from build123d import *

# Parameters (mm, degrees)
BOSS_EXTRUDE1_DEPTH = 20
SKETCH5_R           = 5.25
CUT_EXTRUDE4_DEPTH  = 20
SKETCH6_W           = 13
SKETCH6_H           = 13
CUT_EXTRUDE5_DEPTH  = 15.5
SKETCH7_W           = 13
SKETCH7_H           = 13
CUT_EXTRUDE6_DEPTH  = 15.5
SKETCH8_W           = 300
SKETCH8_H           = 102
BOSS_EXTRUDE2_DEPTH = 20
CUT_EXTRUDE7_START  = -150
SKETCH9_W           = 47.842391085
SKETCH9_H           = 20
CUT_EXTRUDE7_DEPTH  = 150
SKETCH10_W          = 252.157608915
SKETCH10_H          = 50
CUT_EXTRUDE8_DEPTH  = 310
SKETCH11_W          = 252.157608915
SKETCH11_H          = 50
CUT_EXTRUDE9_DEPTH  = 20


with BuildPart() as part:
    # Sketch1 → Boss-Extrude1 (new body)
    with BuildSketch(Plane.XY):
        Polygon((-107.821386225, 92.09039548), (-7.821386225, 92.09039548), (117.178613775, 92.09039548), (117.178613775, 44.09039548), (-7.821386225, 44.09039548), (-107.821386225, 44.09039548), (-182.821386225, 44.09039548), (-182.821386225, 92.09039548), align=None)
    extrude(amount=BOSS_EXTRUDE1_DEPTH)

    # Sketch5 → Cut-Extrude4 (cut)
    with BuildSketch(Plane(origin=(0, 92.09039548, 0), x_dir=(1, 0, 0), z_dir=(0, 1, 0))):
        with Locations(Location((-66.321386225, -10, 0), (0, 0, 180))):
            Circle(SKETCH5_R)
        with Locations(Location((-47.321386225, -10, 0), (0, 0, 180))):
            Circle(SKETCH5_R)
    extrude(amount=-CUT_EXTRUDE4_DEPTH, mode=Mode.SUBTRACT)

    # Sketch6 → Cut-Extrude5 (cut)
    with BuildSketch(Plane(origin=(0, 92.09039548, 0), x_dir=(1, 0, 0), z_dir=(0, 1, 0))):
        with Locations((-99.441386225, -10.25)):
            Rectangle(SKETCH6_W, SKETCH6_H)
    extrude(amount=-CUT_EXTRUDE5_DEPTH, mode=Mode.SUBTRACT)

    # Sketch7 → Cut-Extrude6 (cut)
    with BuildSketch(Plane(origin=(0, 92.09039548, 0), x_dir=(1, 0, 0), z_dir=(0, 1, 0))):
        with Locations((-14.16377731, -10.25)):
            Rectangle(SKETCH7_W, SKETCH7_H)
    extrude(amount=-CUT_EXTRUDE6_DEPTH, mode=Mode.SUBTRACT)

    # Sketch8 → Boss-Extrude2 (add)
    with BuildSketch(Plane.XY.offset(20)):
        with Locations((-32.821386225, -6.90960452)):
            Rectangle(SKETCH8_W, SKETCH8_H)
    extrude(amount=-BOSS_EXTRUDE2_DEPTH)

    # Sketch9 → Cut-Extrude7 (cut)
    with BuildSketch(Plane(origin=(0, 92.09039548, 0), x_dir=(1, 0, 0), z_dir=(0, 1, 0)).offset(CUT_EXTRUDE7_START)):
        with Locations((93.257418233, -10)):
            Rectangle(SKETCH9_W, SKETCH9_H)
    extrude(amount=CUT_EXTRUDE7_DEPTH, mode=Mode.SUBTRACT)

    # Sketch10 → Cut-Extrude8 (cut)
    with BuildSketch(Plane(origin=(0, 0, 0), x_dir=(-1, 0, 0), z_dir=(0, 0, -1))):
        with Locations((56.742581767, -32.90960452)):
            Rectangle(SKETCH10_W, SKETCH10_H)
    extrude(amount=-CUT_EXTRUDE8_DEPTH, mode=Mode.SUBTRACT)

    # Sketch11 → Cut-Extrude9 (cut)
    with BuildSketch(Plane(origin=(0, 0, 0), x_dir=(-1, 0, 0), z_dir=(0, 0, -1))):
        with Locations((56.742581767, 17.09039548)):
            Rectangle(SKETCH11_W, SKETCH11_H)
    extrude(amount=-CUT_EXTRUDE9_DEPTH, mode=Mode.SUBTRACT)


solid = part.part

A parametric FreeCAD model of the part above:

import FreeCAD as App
import Part
import Sketcher

doc = App.newDocument("Part")
body = doc.addObject("PartDesign::Body", "Body")

# Sketch on XY plane
sketch1 = doc.addObject("Sketcher::SketchObject", "Sketch")
body.addObject(sketch1)
sketch1.AttachmentSupport = (doc.XY_Plane, [""])
sketch1.MapMode = "FlatFace"
sketch1.addGeometry(Part.LineSegment(App.Vector(117.178614, 92.090395, 0), App.Vector(-182.821386, 92.090395, 0)), False)
sketch1.addGeometry(Part.LineSegment(App.Vector(-182.821386, 92.090395, 0), App.Vector(-182.821386, 44.090395, 0)), False)
sketch1.addGeometry(Part.LineSegment(App.Vector(-182.821386, 44.090395, 0), App.Vector(117.178614, 44.090395, 0)), False)
sketch1.addGeometry(Part.LineSegment(App.Vector(117.178614, 44.090395, 0), App.Vector(117.178614, 92.090395, 0)), False)
sketch1.addConstraint(Sketcher.Constraint("Coincident", 0, 2, 1, 1))
sketch1.addConstraint(Sketcher.Constraint("Coincident", 1, 2, 2, 1))
sketch1.addConstraint(Sketcher.Constraint("Coincident", 2, 2, 3, 1))
sketch1.addConstraint(Sketcher.Constraint("Coincident", 3, 2, 0, 1))
sketch1.addConstraint(Sketcher.Constraint("Horizontal", 0))
sketch1.addConstraint(Sketcher.Constraint("Vertical", 1))
sketch1.addConstraint(Sketcher.Constraint("Horizontal", 2))
sketch1.addConstraint(Sketcher.Constraint("Vertical", 3))
sketch1.addConstraint(Sketcher.Constraint("DistanceX", 0, 2, 0, 1, 300.0))
sketch1.addConstraint(Sketcher.Constraint("DistanceY", 1, 2, 1, 1, 48.0))
sketch1.addConstraint(Sketcher.Constraint("DistanceX", 0, 2, -1, 1, 182.821386))
sketch1.addConstraint(Sketcher.Constraint("DistanceY", -1, 1, 0, 2, 92.090395))
pad1 = doc.addObject("PartDesign::Pad", "Pad")
body.addObject(pad1)
pad1.Profile = sketch1
pad1.Length = 20

# Sketch on XZ plane
sketch2 = doc.addObject("Sketcher::SketchObject", "Sketch001")
body.addObject(sketch2)
sketch2.AttachmentSupport = (doc.XZ_Plane, [""])
sketch2.MapMode = "FlatFace"
sketch2.AttachmentOffset = App.Placement(App.Vector(0, 0, -92.090395), App.Rotation())
sketch2.addGeometry(Part.Circle(App.Vector(-66.321386, 10, 0), App.Vector(0, 0, 1), 5.25), False)
sketch2.addGeometry(Part.Circle(App.Vector(-47.321386, 10, 0), App.Vector(0, 0, 1), 5.25), False)
sketch2.addConstraint(Sketcher.Constraint("Equal", 0, 1))
sketch2.addConstraint(Sketcher.Constraint("Horizontal", 0, 3, 1, 3))
sketch2.addConstraint(Sketcher.Constraint("Diameter", 0, 10.5))
sketch2.addConstraint(Sketcher.Constraint("DistanceY", -1, 1, 0, 3, 10.0))
sketch2.addConstraint(Sketcher.Constraint("DistanceX", 0, 3, 1, 3, 19.0))
sketch2.addConstraint(Sketcher.Constraint("DistanceX", 0, 3, -1, 1, 66.321386))
pocket1 = doc.addObject("PartDesign::Pocket", "Pocket")
body.addObject(pocket1)
pocket1.Profile = sketch2
pocket1.Length = 20
pocket1.Reversed = True

# Sketch on XZ plane
sketch3 = doc.addObject("Sketcher::SketchObject", "Sketch002")
body.addObject(sketch3)
sketch3.AttachmentSupport = (doc.XZ_Plane, [""])
sketch3.MapMode = "FlatFace"
sketch3.AttachmentOffset = App.Placement(App.Vector(0, 0, -92.090395), App.Rotation())
sketch3.addGeometry(Part.LineSegment(App.Vector(-105.941386, 3.75, 0), App.Vector(-105.941386, 16.75, 0)), False)
sketch3.addGeometry(Part.LineSegment(App.Vector(-105.941386, 16.75, 0), App.Vector(-92.941386, 16.75, 0)), False)
sketch3.addGeometry(Part.LineSegment(App.Vector(-92.941386, 16.75, 0), App.Vector(-92.941386, 3.75, 0)), False)
sketch3.addGeometry(Part.LineSegment(App.Vector(-92.941386, 3.75, 0), App.Vector(-105.941386, 3.75, 0)), False)
sketch3.addConstraint(Sketcher.Constraint("Coincident", 0, 2, 1, 1))
sketch3.addConstraint(Sketcher.Constraint("Coincident", 1, 2, 2, 1))
sketch3.addConstraint(Sketcher.Constraint("Coincident", 2, 2, 3, 1))
sketch3.addConstraint(Sketcher.Constraint("Coincident", 3, 2, 0, 1))
sketch3.addConstraint(Sketcher.Constraint("Vertical", 0))
sketch3.addConstraint(Sketcher.Constraint("Horizontal", 1))
sketch3.addConstraint(Sketcher.Constraint("Vertical", 2))
sketch3.addConstraint(Sketcher.Constraint("Horizontal", 3))
sketch3.addConstraint(Sketcher.Constraint("Equal", 3, 0))
sketch3.addConstraint(Sketcher.Constraint("DistanceX", 1, 1, 1, 2, 13.0))
sketch3.addConstraint(Sketcher.Constraint("DistanceY", -1, 1, 0, 2, 16.75))
sketch3.addConstraint(Sketcher.Constraint("DistanceX", 0, 2, -1, 1, 105.941386))
pocket2 = doc.addObject("PartDesign::Pocket", "Pocket001")
body.addObject(pocket2)
pocket2.Profile = sketch3
pocket2.Length = 15.5
pocket2.Reversed = True

# Sketch on XZ plane
sketch4 = doc.addObject("Sketcher::SketchObject", "Sketch003")
body.addObject(sketch4)
sketch4.AttachmentSupport = (doc.XZ_Plane, [""])
sketch4.MapMode = "FlatFace"
sketch4.AttachmentOffset = App.Placement(App.Vector(0, 0, -92.090395), App.Rotation())
sketch4.addGeometry(Part.LineSegment(App.Vector(-20.663777, 3.75, 0), App.Vector(-20.663777, 16.75, 0)), False)
sketch4.addGeometry(Part.LineSegment(App.Vector(-20.663777, 16.75, 0), App.Vector(-7.663777, 16.75, 0)), False)
sketch4.addGeometry(Part.LineSegment(App.Vector(-7.663777, 16.75, 0), App.Vector(-7.663777, 3.75, 0)), False)
sketch4.addGeometry(Part.LineSegment(App.Vector(-7.663777, 3.75, 0), App.Vector(-20.663777, 3.75, 0)), False)
sketch4.addConstraint(Sketcher.Constraint("Coincident", 0, 2, 1, 1))
sketch4.addConstraint(Sketcher.Constraint("Coincident", 1, 2, 2, 1))
sketch4.addConstraint(Sketcher.Constraint("Coincident", 2, 2, 3, 1))
sketch4.addConstraint(Sketcher.Constraint("Coincident", 3, 2, 0, 1))
sketch4.addConstraint(Sketcher.Constraint("Vertical", 0))
sketch4.addConstraint(Sketcher.Constraint("Horizontal", 1))
sketch4.addConstraint(Sketcher.Constraint("Vertical", 2))
sketch4.addConstraint(Sketcher.Constraint("Horizontal", 3))
sketch4.addConstraint(Sketcher.Constraint("Equal", 3, 0))
sketch4.addConstraint(Sketcher.Constraint("DistanceX", 1, 1, 1, 2, 13.0))
sketch4.addConstraint(Sketcher.Constraint("DistanceY", -1, 1, 0, 2, 16.75))
sketch4.addConstraint(Sketcher.Constraint("DistanceX", 0, 2, -1, 1, 20.663777))
pocket3 = doc.addObject("PartDesign::Pocket", "Pocket002")
body.addObject(pocket3)
pocket3.Profile = sketch4
pocket3.Length = 15.5
pocket3.Reversed = True

# Sketch on XY plane
sketch5 = doc.addObject("Sketcher::SketchObject", "Sketch004")
body.addObject(sketch5)
sketch5.AttachmentSupport = (doc.XY_Plane, [""])
sketch5.MapMode = "FlatFace"
sketch5.AttachmentOffset = App.Placement(App.Vector(0, 0, 20), App.Rotation())
sketch5.addGeometry(Part.LineSegment(App.Vector(-182.821386, 44.090395, 0), App.Vector(-182.821386, -57.909605, 0)), False)
sketch5.addGeometry(Part.LineSegment(App.Vector(-182.821386, -57.909605, 0), App.Vector(117.178614, -57.909605, 0)), False)
sketch5.addGeometry(Part.LineSegment(App.Vector(117.178614, -57.909605, 0), App.Vector(117.178614, 44.090395, 0)), False)
sketch5.addGeometry(Part.LineSegment(App.Vector(117.178614, 44.090395, 0), App.Vector(-182.821386, 44.090395, 0)), False)
sketch5.addConstraint(Sketcher.Constraint("Coincident", 0, 2, 1, 1))
sketch5.addConstraint(Sketcher.Constraint("Coincident", 1, 2, 2, 1))
sketch5.addConstraint(Sketcher.Constraint("Coincident", 2, 2, 3, 1))
sketch5.addConstraint(Sketcher.Constraint("Coincident", 3, 2, 0, 1))
sketch5.addConstraint(Sketcher.Constraint("Vertical", 0))
sketch5.addConstraint(Sketcher.Constraint("Horizontal", 1))
sketch5.addConstraint(Sketcher.Constraint("Vertical", 2))
sketch5.addConstraint(Sketcher.Constraint("Horizontal", 3))
sketch5.addConstraint(Sketcher.Constraint("DistanceX", 1, 1, 1, 2, 300.0))
sketch5.addConstraint(Sketcher.Constraint("DistanceY", 0, 2, 0, 1, 102.0))
sketch5.addConstraint(Sketcher.Constraint("DistanceX", 0, 2, -1, 1, 182.821386))
sketch5.addConstraint(Sketcher.Constraint("DistanceY", 0, 2, -1, 1, 57.909605))
pad2 = doc.addObject("PartDesign::Pad", "Pad001")
body.addObject(pad2)
pad2.Profile = sketch5
pad2.Length = 20
pad2.Reversed = True

# Sketch on XZ plane
sketch6 = doc.addObject("Sketcher::SketchObject", "Sketch005")
body.addObject(sketch6)
sketch6.AttachmentSupport = (doc.XZ_Plane, [""])
sketch6.MapMode = "FlatFace"
sketch6.AttachmentOffset = App.Placement(App.Vector(0, 0, 57.909605), App.Rotation())
sketch6.addGeometry(Part.LineSegment(App.Vector(69.336223, 0, 0), App.Vector(69.336223, 20, 0)), False)
sketch6.addGeometry(Part.LineSegment(App.Vector(69.336223, 20, 0), App.Vector(117.178614, 20, 0)), False)
sketch6.addGeometry(Part.LineSegment(App.Vector(117.178614, 20, 0), App.Vector(117.178614, 0, 0)), False)
sketch6.addGeometry(Part.LineSegment(App.Vector(117.178614, 0, 0), App.Vector(69.336223, 0, 0)), False)
sketch6.addConstraint(Sketcher.Constraint("Coincident", 0, 2, 1, 1))
sketch6.addConstraint(Sketcher.Constraint("Coincident", 1, 2, 2, 1))
sketch6.addConstraint(Sketcher.Constraint("Coincident", 2, 2, 3, 1))
sketch6.addConstraint(Sketcher.Constraint("Coincident", 3, 2, 0, 1))
sketch6.addConstraint(Sketcher.Constraint("Vertical", 0))
sketch6.addConstraint(Sketcher.Constraint("Horizontal", 1))
sketch6.addConstraint(Sketcher.Constraint("Vertical", 2))
sketch6.addConstraint(Sketcher.Constraint("Horizontal", 3))
sketch6.addConstraint(Sketcher.Constraint("PointOnObject", 2, 2, -1))
sketch6.addConstraint(Sketcher.Constraint("DistanceY", 0, 1, 0, 2, 20.0))
sketch6.addConstraint(Sketcher.Constraint("DistanceX", 1, 1, 1, 2, 47.842391))
sketch6.addConstraint(Sketcher.Constraint("DistanceX", -1, 1, 0, 2, 69.336223))
pocket4 = doc.addObject("PartDesign::Pocket", "Pocket003")
body.addObject(pocket4)
pocket4.Profile = sketch6
pocket4.Length = 150

# Sketch on XY plane
sketch7 = doc.addObject("Sketcher::SketchObject", "Sketch006")
body.addObject(sketch7)
sketch7.AttachmentSupport = (doc.XY_Plane, [""])
sketch7.MapMode = "FlatFace"
sketch7.addGeometry(Part.LineSegment(App.Vector(69.336223, -7.909605, 0), App.Vector(69.336223, -57.909605, 0)), False)
sketch7.addGeometry(Part.LineSegment(App.Vector(69.336223, -57.909605, 0), App.Vector(-182.821386, -57.909605, 0)), False)
sketch7.addGeometry(Part.LineSegment(App.Vector(-182.821386, -57.909605, 0), App.Vector(-182.821386, -7.909605, 0)), False)
sketch7.addGeometry(Part.LineSegment(App.Vector(-182.821386, -7.909605, 0), App.Vector(69.336223, -7.909605, 0)), False)
sketch7.addConstraint(Sketcher.Constraint("Coincident", 0, 2, 1, 1))
sketch7.addConstraint(Sketcher.Constraint("Coincident", 1, 2, 2, 1))
sketch7.addConstraint(Sketcher.Constraint("Coincident", 2, 2, 3, 1))
sketch7.addConstraint(Sketcher.Constraint("Coincident", 3, 2, 0, 1))
sketch7.addConstraint(Sketcher.Constraint("Vertical", 0))
sketch7.addConstraint(Sketcher.Constraint("Horizontal", 1))
sketch7.addConstraint(Sketcher.Constraint("Vertical", 2))
sketch7.addConstraint(Sketcher.Constraint("Horizontal", 3))
sketch7.addConstraint(Sketcher.Constraint("DistanceY", 0, 2, 0, 1, 50.0))
sketch7.addConstraint(Sketcher.Constraint("DistanceX", 1, 2, 1, 1, 252.157609))
sketch7.addConstraint(Sketcher.Constraint("DistanceX", -1, 1, 0, 2, 69.336223))
sketch7.addConstraint(Sketcher.Constraint("DistanceY", 0, 2, -1, 1, 57.909605))
pocket5 = doc.addObject("PartDesign::Pocket", "Pocket004")
body.addObject(pocket5)
pocket5.Profile = sketch7
pocket5.Length = 310
pocket5.Reversed = True

# Sketch on XY plane
sketch8 = doc.addObject("Sketcher::SketchObject", "Sketch007")
body.addObject(sketch8)
sketch8.AttachmentSupport = (doc.XY_Plane, [""])
sketch8.MapMode = "FlatFace"
sketch8.addGeometry(Part.LineSegment(App.Vector(69.336223, 42.090395, 0), App.Vector(69.336223, -7.909605, 0)), False)
sketch8.addGeometry(Part.LineSegment(App.Vector(69.336223, -7.909605, 0), App.Vector(-182.821386, -7.909605, 0)), False)
sketch8.addGeometry(Part.LineSegment(App.Vector(-182.821386, -7.909605, 0), App.Vector(-182.821386, 42.090395, 0)), False)
sketch8.addGeometry(Part.LineSegment(App.Vector(-182.821386, 42.090395, 0), App.Vector(69.336223, 42.090395, 0)), False)
sketch8.addConstraint(Sketcher.Constraint("Coincident", 0, 2, 1, 1))
sketch8.addConstraint(Sketcher.Constraint("Coincident", 1, 2, 2, 1))
sketch8.addConstraint(Sketcher.Constraint("Coincident", 2, 2, 3, 1))
sketch8.addConstraint(Sketcher.Constraint("Coincident", 3, 2, 0, 1))
sketch8.addConstraint(Sketcher.Constraint("Vertical", 0))
sketch8.addConstraint(Sketcher.Constraint("Horizontal", 1))
sketch8.addConstraint(Sketcher.Constraint("Vertical", 2))
sketch8.addConstraint(Sketcher.Constraint("Horizontal", 3))
sketch8.addConstraint(Sketcher.Constraint("DistanceY", 0, 2, 0, 1, 50.0))
sketch8.addConstraint(Sketcher.Constraint("DistanceX", 1, 2, 1, 1, 252.157609))
sketch8.addConstraint(Sketcher.Constraint("DistanceX", -1, 1, 0, 2, 69.336223))
sketch8.addConstraint(Sketcher.Constraint("DistanceY", 0, 2, -1, 1, 7.909605))
pocket6 = doc.addObject("PartDesign::Pocket", "Pocket005")
body.addObject(pocket6)
pocket6.Profile = sketch8
pocket6.Length = 20
pocket6.Reversed = True

doc.recompute()
